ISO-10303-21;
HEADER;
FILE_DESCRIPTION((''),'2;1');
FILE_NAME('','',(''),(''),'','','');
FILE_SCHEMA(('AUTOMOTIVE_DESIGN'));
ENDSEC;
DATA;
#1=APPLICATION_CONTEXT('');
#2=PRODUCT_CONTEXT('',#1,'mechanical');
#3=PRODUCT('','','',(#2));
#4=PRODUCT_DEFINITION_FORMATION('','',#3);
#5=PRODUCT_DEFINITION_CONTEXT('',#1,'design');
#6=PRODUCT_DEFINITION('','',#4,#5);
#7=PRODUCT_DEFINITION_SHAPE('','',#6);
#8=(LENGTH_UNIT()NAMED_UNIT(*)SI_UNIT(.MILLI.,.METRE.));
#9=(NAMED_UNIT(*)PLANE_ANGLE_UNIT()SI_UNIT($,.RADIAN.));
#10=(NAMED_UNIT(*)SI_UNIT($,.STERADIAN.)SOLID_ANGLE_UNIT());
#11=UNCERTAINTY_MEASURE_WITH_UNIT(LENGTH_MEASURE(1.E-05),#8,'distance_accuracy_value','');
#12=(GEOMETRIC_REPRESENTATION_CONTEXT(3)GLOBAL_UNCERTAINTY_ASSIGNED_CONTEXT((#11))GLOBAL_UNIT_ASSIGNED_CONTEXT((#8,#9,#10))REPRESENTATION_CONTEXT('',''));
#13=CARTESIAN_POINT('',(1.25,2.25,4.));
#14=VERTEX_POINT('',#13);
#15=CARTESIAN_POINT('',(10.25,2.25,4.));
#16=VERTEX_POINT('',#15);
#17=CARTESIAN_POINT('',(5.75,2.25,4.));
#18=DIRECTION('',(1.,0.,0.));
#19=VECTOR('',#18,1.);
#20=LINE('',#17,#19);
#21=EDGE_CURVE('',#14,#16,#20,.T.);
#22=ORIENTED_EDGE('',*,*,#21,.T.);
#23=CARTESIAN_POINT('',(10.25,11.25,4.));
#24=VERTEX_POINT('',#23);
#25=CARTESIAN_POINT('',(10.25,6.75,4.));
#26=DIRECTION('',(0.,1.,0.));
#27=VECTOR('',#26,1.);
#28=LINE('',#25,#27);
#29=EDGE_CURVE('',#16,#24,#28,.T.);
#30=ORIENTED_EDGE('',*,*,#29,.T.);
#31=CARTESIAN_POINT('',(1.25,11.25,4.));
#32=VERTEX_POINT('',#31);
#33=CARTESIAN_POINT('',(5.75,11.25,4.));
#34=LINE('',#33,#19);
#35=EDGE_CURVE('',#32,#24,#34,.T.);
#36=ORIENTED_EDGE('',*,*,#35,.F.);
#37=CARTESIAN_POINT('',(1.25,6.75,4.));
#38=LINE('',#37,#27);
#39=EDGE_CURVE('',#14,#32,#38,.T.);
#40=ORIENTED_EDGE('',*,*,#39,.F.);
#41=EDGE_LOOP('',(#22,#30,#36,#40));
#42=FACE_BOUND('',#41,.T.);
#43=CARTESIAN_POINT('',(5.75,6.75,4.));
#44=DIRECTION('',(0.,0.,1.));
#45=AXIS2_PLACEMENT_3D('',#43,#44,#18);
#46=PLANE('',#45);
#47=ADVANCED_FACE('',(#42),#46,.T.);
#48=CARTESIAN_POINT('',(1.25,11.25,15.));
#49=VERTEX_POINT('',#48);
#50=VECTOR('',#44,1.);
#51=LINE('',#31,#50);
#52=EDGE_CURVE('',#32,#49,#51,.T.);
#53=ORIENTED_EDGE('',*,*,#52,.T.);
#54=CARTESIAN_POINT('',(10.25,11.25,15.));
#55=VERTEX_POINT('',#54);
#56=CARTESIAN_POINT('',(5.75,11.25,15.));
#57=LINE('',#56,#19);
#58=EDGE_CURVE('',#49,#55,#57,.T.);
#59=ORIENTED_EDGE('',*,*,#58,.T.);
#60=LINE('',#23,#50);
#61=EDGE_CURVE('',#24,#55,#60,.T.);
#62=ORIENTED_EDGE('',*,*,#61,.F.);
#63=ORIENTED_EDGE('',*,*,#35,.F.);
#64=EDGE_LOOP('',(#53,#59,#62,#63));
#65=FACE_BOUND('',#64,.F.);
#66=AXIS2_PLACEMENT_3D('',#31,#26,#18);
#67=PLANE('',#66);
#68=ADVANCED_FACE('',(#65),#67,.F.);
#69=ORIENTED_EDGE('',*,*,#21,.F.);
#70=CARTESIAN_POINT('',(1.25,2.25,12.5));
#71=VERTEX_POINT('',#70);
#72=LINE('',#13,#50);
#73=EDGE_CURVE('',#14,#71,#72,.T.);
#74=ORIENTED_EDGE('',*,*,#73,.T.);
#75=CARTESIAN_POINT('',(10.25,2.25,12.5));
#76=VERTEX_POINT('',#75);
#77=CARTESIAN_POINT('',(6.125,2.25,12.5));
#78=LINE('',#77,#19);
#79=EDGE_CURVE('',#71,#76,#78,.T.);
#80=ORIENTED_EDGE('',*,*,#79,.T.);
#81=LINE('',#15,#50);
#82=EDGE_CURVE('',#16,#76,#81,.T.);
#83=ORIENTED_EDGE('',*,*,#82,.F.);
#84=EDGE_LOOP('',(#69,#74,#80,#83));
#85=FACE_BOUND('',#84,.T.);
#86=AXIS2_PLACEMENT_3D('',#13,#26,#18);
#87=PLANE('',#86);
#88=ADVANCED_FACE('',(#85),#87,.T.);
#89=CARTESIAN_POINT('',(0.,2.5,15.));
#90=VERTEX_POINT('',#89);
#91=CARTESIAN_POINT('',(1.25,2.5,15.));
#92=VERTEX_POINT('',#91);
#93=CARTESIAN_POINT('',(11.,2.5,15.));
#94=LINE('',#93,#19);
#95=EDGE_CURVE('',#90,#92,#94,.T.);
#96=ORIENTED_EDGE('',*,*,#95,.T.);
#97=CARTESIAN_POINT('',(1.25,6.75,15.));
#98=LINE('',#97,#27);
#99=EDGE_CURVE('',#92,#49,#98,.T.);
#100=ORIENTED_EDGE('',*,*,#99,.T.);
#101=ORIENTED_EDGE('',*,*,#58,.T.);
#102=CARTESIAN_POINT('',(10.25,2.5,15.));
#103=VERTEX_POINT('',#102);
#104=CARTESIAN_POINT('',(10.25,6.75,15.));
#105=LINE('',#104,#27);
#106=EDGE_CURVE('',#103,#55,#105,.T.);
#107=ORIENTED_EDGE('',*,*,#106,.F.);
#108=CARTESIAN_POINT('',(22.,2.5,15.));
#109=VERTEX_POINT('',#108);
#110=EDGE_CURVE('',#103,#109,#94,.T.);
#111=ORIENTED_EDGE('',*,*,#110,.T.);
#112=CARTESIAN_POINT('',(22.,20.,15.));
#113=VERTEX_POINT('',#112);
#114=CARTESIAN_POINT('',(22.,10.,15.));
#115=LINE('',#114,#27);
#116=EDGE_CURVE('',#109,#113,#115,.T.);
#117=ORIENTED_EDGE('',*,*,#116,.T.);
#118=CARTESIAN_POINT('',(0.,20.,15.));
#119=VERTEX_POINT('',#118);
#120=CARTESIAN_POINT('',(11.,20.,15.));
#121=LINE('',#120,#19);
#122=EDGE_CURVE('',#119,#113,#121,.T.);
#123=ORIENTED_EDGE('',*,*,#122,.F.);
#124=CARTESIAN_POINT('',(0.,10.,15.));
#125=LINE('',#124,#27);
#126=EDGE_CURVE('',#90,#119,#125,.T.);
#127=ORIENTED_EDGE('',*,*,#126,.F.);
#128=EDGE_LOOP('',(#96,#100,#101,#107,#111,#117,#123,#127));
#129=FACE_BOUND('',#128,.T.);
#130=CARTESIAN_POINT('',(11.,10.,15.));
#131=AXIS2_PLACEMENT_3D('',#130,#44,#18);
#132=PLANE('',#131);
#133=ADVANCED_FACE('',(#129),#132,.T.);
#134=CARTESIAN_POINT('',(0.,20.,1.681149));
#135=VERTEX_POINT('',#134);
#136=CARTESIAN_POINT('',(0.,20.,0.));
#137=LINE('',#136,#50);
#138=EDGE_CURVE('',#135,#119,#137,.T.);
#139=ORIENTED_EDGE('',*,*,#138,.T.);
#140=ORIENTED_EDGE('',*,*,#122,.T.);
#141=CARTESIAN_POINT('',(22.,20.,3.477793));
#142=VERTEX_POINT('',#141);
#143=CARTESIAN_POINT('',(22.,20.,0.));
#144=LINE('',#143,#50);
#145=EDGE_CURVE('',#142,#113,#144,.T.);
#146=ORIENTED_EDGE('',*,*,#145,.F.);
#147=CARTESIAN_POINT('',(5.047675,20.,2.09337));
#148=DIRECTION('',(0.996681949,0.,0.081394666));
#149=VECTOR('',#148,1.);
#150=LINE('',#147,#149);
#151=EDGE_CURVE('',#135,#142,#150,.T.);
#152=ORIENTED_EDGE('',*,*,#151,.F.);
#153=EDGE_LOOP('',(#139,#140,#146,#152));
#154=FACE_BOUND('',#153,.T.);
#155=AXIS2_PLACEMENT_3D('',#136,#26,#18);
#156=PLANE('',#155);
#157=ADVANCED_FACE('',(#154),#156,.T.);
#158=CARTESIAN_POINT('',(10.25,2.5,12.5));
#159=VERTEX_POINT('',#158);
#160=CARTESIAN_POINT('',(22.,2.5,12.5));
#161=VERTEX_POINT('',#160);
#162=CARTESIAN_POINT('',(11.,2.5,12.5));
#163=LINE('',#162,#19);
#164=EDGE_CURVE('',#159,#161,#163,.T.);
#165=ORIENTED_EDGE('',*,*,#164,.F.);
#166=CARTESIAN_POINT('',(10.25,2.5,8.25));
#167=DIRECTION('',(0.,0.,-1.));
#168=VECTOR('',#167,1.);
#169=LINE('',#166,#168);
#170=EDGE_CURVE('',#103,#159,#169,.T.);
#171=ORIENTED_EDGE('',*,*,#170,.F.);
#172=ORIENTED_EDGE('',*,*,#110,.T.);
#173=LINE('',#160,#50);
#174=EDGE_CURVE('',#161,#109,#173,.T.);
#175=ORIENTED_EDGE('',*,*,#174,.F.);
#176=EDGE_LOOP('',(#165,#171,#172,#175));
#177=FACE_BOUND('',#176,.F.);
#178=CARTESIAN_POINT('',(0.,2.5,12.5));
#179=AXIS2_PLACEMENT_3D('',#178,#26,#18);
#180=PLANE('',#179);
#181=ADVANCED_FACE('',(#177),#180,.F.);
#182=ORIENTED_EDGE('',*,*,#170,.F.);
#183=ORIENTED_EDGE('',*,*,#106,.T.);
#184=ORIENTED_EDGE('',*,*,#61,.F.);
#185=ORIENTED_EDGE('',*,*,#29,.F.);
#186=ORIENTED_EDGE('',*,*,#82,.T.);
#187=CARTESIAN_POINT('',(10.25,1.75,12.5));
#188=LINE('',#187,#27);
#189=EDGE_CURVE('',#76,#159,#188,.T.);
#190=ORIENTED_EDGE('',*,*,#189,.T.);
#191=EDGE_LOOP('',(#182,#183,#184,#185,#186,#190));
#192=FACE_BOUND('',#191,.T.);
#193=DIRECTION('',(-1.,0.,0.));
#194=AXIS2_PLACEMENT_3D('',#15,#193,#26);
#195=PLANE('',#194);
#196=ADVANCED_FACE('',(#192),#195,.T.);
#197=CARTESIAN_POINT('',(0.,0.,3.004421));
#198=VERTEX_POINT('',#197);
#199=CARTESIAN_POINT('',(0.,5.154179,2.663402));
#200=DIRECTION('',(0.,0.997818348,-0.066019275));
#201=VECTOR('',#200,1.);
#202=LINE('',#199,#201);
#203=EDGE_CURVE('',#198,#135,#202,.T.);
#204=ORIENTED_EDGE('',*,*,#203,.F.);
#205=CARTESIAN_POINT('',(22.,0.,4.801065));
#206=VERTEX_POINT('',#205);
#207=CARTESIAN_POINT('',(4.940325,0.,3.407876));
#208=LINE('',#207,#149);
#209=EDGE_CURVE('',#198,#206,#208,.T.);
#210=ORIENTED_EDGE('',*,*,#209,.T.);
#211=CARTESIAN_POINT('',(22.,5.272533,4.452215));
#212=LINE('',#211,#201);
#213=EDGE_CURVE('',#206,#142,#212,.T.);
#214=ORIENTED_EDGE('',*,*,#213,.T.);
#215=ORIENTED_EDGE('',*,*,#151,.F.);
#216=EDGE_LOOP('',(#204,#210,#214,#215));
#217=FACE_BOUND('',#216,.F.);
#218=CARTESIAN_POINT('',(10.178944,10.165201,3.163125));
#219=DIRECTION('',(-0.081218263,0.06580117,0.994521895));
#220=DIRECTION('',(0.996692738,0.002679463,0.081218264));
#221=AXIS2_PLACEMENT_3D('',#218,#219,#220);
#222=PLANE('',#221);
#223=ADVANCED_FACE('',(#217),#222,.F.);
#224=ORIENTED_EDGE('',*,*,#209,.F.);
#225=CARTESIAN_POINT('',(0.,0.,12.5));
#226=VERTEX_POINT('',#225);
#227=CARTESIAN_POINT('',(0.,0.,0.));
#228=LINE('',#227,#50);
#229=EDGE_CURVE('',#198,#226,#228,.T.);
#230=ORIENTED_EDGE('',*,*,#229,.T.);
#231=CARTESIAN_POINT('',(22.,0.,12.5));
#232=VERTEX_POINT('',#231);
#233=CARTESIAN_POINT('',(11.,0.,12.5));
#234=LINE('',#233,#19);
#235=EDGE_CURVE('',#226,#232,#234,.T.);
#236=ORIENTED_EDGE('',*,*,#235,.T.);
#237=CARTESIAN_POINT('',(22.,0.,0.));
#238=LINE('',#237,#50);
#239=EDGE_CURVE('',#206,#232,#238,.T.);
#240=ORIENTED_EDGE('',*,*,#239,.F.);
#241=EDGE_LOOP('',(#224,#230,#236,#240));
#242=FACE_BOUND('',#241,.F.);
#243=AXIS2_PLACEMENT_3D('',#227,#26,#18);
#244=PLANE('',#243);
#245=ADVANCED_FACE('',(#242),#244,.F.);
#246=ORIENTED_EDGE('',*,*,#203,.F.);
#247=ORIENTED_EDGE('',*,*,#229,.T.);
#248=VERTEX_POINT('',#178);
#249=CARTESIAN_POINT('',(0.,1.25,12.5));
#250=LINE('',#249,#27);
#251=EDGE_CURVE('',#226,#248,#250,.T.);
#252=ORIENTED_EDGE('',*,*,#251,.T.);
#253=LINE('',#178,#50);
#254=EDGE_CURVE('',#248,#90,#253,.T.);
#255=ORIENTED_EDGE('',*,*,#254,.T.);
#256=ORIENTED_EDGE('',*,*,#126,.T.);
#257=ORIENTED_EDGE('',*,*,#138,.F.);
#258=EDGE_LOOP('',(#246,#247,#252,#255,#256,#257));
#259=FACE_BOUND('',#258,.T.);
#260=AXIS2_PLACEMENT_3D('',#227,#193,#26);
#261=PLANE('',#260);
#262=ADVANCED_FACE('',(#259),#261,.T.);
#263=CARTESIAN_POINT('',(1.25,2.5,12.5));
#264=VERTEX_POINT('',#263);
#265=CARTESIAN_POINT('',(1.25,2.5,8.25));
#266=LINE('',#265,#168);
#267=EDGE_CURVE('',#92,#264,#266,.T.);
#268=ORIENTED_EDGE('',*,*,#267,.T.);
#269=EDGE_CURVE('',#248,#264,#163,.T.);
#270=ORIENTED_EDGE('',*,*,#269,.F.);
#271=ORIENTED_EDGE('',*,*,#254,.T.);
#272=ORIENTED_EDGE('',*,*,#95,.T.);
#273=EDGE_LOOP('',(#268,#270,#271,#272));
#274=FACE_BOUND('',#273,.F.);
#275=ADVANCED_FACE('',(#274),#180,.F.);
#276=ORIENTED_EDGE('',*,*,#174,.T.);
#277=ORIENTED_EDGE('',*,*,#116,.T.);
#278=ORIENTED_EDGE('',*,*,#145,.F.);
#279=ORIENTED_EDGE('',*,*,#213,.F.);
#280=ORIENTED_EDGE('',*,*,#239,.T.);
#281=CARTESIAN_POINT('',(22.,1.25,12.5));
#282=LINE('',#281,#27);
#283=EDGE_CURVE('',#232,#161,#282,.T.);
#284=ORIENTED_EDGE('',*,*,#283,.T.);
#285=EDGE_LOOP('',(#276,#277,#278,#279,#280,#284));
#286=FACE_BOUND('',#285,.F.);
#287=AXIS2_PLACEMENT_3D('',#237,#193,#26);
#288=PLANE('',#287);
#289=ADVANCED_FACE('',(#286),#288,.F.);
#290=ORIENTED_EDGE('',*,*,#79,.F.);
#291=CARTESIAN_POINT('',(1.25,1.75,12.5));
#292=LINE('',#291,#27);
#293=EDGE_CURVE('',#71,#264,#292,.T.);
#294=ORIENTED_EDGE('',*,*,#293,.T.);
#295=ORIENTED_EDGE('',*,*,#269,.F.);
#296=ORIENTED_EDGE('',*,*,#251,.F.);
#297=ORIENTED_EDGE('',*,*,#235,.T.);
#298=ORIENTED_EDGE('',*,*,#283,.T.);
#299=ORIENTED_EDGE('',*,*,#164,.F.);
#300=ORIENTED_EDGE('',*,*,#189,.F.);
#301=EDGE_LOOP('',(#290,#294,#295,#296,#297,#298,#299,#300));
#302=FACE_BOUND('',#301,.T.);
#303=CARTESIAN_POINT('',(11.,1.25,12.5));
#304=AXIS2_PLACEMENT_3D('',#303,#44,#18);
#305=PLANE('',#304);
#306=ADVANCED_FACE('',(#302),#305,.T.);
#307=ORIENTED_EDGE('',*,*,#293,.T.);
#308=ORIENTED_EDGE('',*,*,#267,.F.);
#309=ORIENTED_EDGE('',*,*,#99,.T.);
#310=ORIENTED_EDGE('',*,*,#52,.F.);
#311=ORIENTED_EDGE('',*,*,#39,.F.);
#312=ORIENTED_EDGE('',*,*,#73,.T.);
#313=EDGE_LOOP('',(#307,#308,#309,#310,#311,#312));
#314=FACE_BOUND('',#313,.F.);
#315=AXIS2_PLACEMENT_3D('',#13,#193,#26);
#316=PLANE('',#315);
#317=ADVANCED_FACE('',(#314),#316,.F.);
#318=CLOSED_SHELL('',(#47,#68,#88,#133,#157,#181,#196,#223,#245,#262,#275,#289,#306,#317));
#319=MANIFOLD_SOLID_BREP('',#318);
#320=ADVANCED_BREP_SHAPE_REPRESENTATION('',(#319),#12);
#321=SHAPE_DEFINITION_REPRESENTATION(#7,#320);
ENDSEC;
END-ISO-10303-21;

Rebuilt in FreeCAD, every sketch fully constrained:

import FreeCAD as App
import Part
import Sketcher

V = App.Vector


def add_polygon(sketch, points):
    """Adds a closed chain of lines whose ends are joined by coincident constraints."""
    first, n = sketch.GeometryCount, len(points)
    for a, b in zip(points, points[1:] + points[:1]):
        sketch.addGeometry(Part.LineSegment(App.Vector(*a, 0), App.Vector(*b, 0)), False)
    for i in range(n):
        sketch.addConstraint(Sketcher.Constraint("Coincident", first + i, 2, first + (i + 1) % n, 1))

doc = App.newDocument("Part")
params = doc.addObject("Spreadsheet::Sheet", "Params")
for row, (alias, value) in enumerate([
    ("sketch1_width", "24 mm"),
    ("sketch1_height", "23 mm"),
    ("pad1_length", "10 mm"),
    ("sketch2_width", "22 mm"),
    ("sketch2_height", "2.5 mm"),
    ("pad2_length", "2.5 mm"),
    ("sketch3_width", "9 mm"),
    ("pad3_length", "11 mm"),
    ("sketch4_width", "22 mm"),
    ("sketch4_height", "20 mm"),
    ("pad4_length", "15 mm"),
], start=1):
    params.set(f"A{row}", alias)
    params.set(f"B{row}", "=" + value)
    params.setAlias(f"B{row}", alias)

body = doc.addObject("PartDesign::Body", "Body")

sketch1 = body.newObject("Sketcher::SketchObject", "Sketch")
sketch1.AttachmentSupport = (doc.getObject("XY_Plane"), [""])
sketch1.MapMode = "FlatFace"
add_polygon(sketch1, [(0, 23), (0, 0), (24, 0), (24, 23)])
sketch1.addConstraint(Sketcher.Constraint("Vertical", 0))
sketch1.addConstraint(Sketcher.Constraint("Horizontal", 1))
sketch1.addConstraint(Sketcher.Constraint("Vertical", 2))
sketch1.addConstraint(Sketcher.Constraint("Horizontal", 3))
sketch1.addConstraint(Sketcher.Constraint("Coincident", 0, 2, -1, 1))
sketch1.addConstraint(Sketcher.Constraint("DistanceX", 1, 1, 1, 2, 24.0))
sketch1.addConstraint(Sketcher.Constraint("DistanceY", 0, 2, 0, 1, 23.0))
sketch1.setExpression("Constraints[9]", "Params.sketch1_width")
sketch1.setExpression("Constraints[10]", "Params.sketch1_height")
pad1 = body.newObject("PartDesign::Pad", "Pad")
pad1.Profile = sketch1
pad1.setExpression("Length", "Params.pad1_length")
body2 = doc.addObject("PartDesign::Body", "Body001")
doc.recompute()

body.Placement = App.Placement(V(0, 0, 0), App.Rotation(V(1, 0, 0), 356.214621))
boolean = body2.newObject("PartDesign::Boolean", "Boolean")
boolean.Type = "Fuse"
boolean.addObjects([body])
body3 = doc.addObject("PartDesign::Body", "Body002")
doc.recompute()

body2.Placement = App.Placement(V(0, 0, 0), App.Rotation(V(0, 1, 0), 355.341405))
boolean2 = body3.newObject("PartDesign::Boolean", "Boolean001")
boolean2.Type = "Fuse"
boolean2.addObjects([body2])
body4 = doc.addObject("PartDesign::Body", "Body003")
doc.recompute()

body3.Placement = App.Placement(V(-1, -2, -7), App.Rotation(V(0, 0, 1), 0.154031))
boolean3 = body4.newObject("PartDesign::Boolean", "Boolean002")
boolean3.Type = "Fuse"
boolean3.addObjects([body3])
body5 = doc.addObject("PartDesign::Body", "Body004")

sketch2 = body5.newObject("Sketcher::SketchObject", "Sketch001")
sketch2.AttachmentSupport = (doc.getObject("XY_Plane004"), [""])
sketch2.MapMode = "FlatFace"
sketch2.AttachmentOffset = App.Placement(V(0, 0, 12.5), App.Rotation())
add_polygon(sketch2, [(0, 2.5), (0, 0), (22, 0), (22, 2.5)])
sketch2.addConstraint(Sketcher.Constraint("Vertical", 0))
sketch2.addConstraint(Sketcher.Constraint("Horizontal", 1))
sketch2.addConstraint(Sketcher.Constraint("Vertical", 2))
sketch2.addConstraint(Sketcher.Constraint("Horizontal", 3))
sketch2.addConstraint(Sketcher.Constraint("Coincident", 0, 2, -1, 1))
sketch2.addConstraint(Sketcher.Constraint("DistanceX", 1, 1, 1, 2, 22.0))
sketch2.addConstraint(Sketcher.Constraint("DistanceY", 0, 2, 0, 1, 2.5))
sketch2.setExpression("Constraints[9]", "Params.sketch2_width")
sketch2.setExpression("Constraints[10]", "Params.sketch2_height")
pad2 = body5.newObject("PartDesign::Pad", "Pad001")
pad2.Profile = sketch2
pad2.setExpression("Length", "Params.pad2_length")
body6 = doc.addObject("PartDesign::Body", "Body005")

sketch3 = body6.newObject("Sketcher::SketchObject", "Sketch002")
sketch3.AttachmentSupport = (doc.getObject("XY_Plane005"), [""])
sketch3.MapMode = "FlatFace"
sketch3.AttachmentOffset = App.Placement(V(0, 0, 4), App.Rotation())
add_polygon(sketch3, [(1, 11), (1, 2), (10, 2), (10, 11)])
sketch3.addConstraint(Sketcher.Constraint("Vertical", 0))
sketch3.addConstraint(Sketcher.Constraint("Horizontal", 1))
sketch3.addConstraint(Sketcher.Constraint("Vertical", 2))
sketch3.addConstraint(Sketcher.Constraint("Horizontal", 3))
sketch3.addConstraint(Sketcher.Constraint("Equal", 3, 0))
sketch3.addConstraint(Sketcher.Constraint("DistanceX", 1, 1, 1, 2, 9.0))
sketch3.addConstraint(Sketcher.Constraint("DistanceX", -1, 1, 0, 2, 1.25))
sketch3.addConstraint(Sketcher.Constraint("DistanceY", -1, 1, 0, 2, 2.25))
sketch3.setExpression("Constraints[9]", "Params.sketch3_width")
pad3 = body6.newObject("PartDesign::Pad", "Pad002")
pad3.Profile = sketch3
pad3.setExpression("Length", "Params.pad3_length")
body7 = doc.addObject("PartDesign::Body", "Body006")

sketch4 = body7.newObject("Sketcher::SketchObject", "Sketch003")
sketch4.AttachmentSupport = (doc.getObject("XY_Plane006"), [""])
sketch4.MapMode = "FlatFace"
add_polygon(sketch4, [(0, 20), (0, 0), (22, 0), (22, 20)])
sketch4.addConstraint(Sketcher.Constraint("Vertical", 0))
sketch4.addConstraint(Sketcher.Constraint("Horizontal", 1))
sketch4.addConstraint(Sketcher.Constraint("Vertical", 2))
sketch4.addConstraint(Sketcher.Constraint("Horizontal", 3))
sketch4.addConstraint(Sketcher.Constraint("Coincident", 0, 2, -1, 1))
sketch4.addConstraint(Sketcher.Constraint("DistanceX", 1, 1, 1, 2, 22.0))
sketch4.addConstraint(Sketcher.Constraint("DistanceY", 0, 2, 0, 1, 20.0))
sketch4.setExpression("Constraints[9]", "Params.sketch4_width")
sketch4.setExpression("Constraints[10]", "Params.sketch4_height")
pad4 = body7.newObject("PartDesign::Pad", "Pad003")
pad4.Profile = sketch4
pad4.setExpression("Length", "Params.pad4_length")
doc.recompute()

boolean4 = body7.newObject("PartDesign::Boolean", "Boolean003")
boolean4.Type = "Cut"
boolean4.addObjects([body6])
doc.recompute()

boolean5 = body7.newObject("PartDesign::Boolean", "Boolean004")
boolean5.Type = "Cut"
boolean5.addObjects([body5])
doc.recompute()

boolean6 = body7.newObject("PartDesign::Boolean", "Boolean005")
boolean6.Type = "Cut"
boolean6.addObjects([body4])

doc.recompute()
